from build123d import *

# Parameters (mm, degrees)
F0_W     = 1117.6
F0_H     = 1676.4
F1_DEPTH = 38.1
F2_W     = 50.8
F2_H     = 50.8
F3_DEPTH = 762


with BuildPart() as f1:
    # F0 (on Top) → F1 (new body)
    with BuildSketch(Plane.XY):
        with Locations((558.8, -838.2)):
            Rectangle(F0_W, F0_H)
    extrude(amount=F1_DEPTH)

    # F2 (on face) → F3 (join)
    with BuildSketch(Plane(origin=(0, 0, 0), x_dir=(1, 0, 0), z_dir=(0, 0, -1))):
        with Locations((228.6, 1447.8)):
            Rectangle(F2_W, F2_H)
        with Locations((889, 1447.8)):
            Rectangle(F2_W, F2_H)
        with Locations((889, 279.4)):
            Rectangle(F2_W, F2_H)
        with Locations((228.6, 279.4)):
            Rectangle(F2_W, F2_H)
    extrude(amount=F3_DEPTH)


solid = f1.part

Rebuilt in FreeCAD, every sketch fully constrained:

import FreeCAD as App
import Part
import Sketcher
from FreeCAD import Vector
Q = App.Units.Quantity


def add_polygon(sketch, points):
    """Adds a closed chain of lines whose ends are joined by coincident constraints."""
    first, n = sketch.GeometryCount, len(points)
    for a, b in zip(points, points[1:] + points[:1]):
        sketch.addGeometry(Part.LineSegment(App.Vector(*a, 0), App.Vector(*b, 0)), False)
    for i in range(n):
        sketch.addConstraint(Sketcher.Constraint("Coincident", first + i, 2, first + (i + 1) % n, 1))

doc = App.newDocument("Part")
body = doc.addObject("PartDesign::Body", "Body")

sketch1 = doc.addObject("Sketcher::SketchObject", "Sketch")
body.addObject(sketch1)
sketch1.AttachmentSupport = (doc.XY_Plane, [""])
sketch1.MapMode = "FlatFace"
add_polygon(sketch1, [(0, 0), (0, -1676.4), (1117.6, -1676.4), (1117.6, 0)])
sketch1.addConstraint([
    Sketcher.Constraint("Vertical", 0),
    Sketcher.Constraint("Horizontal", 1),
    Sketcher.Constraint("Vertical", 2),
    Sketcher.Constraint("Horizontal", 3),
    Sketcher.Constraint("Coincident", 3, 2, -1, 1),
    Sketcher.Constraint("DistanceX", 1, 1, 1, 2, Q("44 in")),
    Sketcher.Constraint("DistanceY", 0, 2, 0, 1, Q("66 in")),
])
pad1 = doc.addObject("PartDesign::Pad", "Pad")
body.addObject(pad1)
pad1.Profile = sketch1
pad1.Length = Q("1.5 in")

sketch2 = doc.addObject("Sketcher::SketchObject", "Sketch001")
body.addObject(sketch2)
sketch2.AttachmentSupport = (doc.XY_Plane, [""])
sketch2.MapMode = "FlatFace"
add_polygon(sketch2, [(203.2, -1473.2), (203.2, -1422.4), (254, -1422.4), (254, -1473.2)])
add_polygon(sketch2, [(863.6, -1473.2), (863.6, -1422.4), (914.4, -1422.4), (914.4, -1473.2)])
add_polygon(sketch2, [(863.6, -304.8), (863.6, -254), (914.4, -254), (914.4, -304.8)])
add_polygon(sketch2, [(203.2, -304.8), (203.2, -254), (254, -254), (254, -304.8)])
sketch2.addConstraint([
    Sketcher.Constraint("Vertical", 0),
    Sketcher.Constraint("Horizontal", 1),
    Sketcher.Constraint("Vertical", 2),
    Sketcher.Constraint("Horizontal", 3),
    Sketcher.Constraint("Vertical", 4),
    Sketcher.Constraint("Horizontal", 5),
    Sketcher.Constraint("Vertical", 6),
    Sketcher.Constraint("Horizontal", 7),
    Sketcher.Constraint("Vertical", 8),
    Sketcher.Constraint("Horizontal", 9),
    Sketcher.Constraint("Vertical", 10),
    Sketcher.Constraint("Horizontal", 11),
    Sketcher.Constraint("Vertical", 12),
    Sketcher.Constraint("Horizontal", 13),
    Sketcher.Constraint("Vertical", 14),
    Sketcher.Constraint("Horizontal", 15),
    Sketcher.Constraint("Horizontal", 1, 2, 4, 2),
    Sketcher.Constraint("Horizontal", 3, 2, 6, 2),
    Sketcher.Constraint("Horizontal", 9, 2, 12, 2),
    Sketcher.Constraint("Horizontal", 11, 2, 14, 2),
    Sketcher.Constraint("Vertical", 7, 2, 8, 2),
    Sketcher.Constraint("Vertical", 6, 2, 9, 2),
    Sketcher.Constraint("Vertical", 3, 2, 12, 2),
    Sketcher.Constraint("Vertical", 2, 2, 13, 2),
    Sketcher.Constraint("Equal", 3, 5),
    Sketcher.Constraint("Equal", 15, 0),
    Sketcher.Constraint("Equal", 6, 8),
    Sketcher.Constraint("DistanceX", 1, 1, 1, 2, Q("2 in")),
    Sketcher.Constraint("DistanceX", -1, 1, 0, 2, Q("8 in")),
    Sketcher.Constraint("DistanceY", 0, 2, -1, 1, Q("56 in")),
    Sketcher.Constraint("DistanceX", -1, 1, 4, 2, Q("34 in")),
    Sketcher.Constraint("DistanceY", 8, 2, -1, 1, Q("10 in")),
])
pad2 = doc.addObject("PartDesign::Pad", "Pad001")
body.addObject(pad2)
pad2.Profile = sketch2
pad2.Length = Q("30 in")
pad2.Reversed = True

doc.recompute()
